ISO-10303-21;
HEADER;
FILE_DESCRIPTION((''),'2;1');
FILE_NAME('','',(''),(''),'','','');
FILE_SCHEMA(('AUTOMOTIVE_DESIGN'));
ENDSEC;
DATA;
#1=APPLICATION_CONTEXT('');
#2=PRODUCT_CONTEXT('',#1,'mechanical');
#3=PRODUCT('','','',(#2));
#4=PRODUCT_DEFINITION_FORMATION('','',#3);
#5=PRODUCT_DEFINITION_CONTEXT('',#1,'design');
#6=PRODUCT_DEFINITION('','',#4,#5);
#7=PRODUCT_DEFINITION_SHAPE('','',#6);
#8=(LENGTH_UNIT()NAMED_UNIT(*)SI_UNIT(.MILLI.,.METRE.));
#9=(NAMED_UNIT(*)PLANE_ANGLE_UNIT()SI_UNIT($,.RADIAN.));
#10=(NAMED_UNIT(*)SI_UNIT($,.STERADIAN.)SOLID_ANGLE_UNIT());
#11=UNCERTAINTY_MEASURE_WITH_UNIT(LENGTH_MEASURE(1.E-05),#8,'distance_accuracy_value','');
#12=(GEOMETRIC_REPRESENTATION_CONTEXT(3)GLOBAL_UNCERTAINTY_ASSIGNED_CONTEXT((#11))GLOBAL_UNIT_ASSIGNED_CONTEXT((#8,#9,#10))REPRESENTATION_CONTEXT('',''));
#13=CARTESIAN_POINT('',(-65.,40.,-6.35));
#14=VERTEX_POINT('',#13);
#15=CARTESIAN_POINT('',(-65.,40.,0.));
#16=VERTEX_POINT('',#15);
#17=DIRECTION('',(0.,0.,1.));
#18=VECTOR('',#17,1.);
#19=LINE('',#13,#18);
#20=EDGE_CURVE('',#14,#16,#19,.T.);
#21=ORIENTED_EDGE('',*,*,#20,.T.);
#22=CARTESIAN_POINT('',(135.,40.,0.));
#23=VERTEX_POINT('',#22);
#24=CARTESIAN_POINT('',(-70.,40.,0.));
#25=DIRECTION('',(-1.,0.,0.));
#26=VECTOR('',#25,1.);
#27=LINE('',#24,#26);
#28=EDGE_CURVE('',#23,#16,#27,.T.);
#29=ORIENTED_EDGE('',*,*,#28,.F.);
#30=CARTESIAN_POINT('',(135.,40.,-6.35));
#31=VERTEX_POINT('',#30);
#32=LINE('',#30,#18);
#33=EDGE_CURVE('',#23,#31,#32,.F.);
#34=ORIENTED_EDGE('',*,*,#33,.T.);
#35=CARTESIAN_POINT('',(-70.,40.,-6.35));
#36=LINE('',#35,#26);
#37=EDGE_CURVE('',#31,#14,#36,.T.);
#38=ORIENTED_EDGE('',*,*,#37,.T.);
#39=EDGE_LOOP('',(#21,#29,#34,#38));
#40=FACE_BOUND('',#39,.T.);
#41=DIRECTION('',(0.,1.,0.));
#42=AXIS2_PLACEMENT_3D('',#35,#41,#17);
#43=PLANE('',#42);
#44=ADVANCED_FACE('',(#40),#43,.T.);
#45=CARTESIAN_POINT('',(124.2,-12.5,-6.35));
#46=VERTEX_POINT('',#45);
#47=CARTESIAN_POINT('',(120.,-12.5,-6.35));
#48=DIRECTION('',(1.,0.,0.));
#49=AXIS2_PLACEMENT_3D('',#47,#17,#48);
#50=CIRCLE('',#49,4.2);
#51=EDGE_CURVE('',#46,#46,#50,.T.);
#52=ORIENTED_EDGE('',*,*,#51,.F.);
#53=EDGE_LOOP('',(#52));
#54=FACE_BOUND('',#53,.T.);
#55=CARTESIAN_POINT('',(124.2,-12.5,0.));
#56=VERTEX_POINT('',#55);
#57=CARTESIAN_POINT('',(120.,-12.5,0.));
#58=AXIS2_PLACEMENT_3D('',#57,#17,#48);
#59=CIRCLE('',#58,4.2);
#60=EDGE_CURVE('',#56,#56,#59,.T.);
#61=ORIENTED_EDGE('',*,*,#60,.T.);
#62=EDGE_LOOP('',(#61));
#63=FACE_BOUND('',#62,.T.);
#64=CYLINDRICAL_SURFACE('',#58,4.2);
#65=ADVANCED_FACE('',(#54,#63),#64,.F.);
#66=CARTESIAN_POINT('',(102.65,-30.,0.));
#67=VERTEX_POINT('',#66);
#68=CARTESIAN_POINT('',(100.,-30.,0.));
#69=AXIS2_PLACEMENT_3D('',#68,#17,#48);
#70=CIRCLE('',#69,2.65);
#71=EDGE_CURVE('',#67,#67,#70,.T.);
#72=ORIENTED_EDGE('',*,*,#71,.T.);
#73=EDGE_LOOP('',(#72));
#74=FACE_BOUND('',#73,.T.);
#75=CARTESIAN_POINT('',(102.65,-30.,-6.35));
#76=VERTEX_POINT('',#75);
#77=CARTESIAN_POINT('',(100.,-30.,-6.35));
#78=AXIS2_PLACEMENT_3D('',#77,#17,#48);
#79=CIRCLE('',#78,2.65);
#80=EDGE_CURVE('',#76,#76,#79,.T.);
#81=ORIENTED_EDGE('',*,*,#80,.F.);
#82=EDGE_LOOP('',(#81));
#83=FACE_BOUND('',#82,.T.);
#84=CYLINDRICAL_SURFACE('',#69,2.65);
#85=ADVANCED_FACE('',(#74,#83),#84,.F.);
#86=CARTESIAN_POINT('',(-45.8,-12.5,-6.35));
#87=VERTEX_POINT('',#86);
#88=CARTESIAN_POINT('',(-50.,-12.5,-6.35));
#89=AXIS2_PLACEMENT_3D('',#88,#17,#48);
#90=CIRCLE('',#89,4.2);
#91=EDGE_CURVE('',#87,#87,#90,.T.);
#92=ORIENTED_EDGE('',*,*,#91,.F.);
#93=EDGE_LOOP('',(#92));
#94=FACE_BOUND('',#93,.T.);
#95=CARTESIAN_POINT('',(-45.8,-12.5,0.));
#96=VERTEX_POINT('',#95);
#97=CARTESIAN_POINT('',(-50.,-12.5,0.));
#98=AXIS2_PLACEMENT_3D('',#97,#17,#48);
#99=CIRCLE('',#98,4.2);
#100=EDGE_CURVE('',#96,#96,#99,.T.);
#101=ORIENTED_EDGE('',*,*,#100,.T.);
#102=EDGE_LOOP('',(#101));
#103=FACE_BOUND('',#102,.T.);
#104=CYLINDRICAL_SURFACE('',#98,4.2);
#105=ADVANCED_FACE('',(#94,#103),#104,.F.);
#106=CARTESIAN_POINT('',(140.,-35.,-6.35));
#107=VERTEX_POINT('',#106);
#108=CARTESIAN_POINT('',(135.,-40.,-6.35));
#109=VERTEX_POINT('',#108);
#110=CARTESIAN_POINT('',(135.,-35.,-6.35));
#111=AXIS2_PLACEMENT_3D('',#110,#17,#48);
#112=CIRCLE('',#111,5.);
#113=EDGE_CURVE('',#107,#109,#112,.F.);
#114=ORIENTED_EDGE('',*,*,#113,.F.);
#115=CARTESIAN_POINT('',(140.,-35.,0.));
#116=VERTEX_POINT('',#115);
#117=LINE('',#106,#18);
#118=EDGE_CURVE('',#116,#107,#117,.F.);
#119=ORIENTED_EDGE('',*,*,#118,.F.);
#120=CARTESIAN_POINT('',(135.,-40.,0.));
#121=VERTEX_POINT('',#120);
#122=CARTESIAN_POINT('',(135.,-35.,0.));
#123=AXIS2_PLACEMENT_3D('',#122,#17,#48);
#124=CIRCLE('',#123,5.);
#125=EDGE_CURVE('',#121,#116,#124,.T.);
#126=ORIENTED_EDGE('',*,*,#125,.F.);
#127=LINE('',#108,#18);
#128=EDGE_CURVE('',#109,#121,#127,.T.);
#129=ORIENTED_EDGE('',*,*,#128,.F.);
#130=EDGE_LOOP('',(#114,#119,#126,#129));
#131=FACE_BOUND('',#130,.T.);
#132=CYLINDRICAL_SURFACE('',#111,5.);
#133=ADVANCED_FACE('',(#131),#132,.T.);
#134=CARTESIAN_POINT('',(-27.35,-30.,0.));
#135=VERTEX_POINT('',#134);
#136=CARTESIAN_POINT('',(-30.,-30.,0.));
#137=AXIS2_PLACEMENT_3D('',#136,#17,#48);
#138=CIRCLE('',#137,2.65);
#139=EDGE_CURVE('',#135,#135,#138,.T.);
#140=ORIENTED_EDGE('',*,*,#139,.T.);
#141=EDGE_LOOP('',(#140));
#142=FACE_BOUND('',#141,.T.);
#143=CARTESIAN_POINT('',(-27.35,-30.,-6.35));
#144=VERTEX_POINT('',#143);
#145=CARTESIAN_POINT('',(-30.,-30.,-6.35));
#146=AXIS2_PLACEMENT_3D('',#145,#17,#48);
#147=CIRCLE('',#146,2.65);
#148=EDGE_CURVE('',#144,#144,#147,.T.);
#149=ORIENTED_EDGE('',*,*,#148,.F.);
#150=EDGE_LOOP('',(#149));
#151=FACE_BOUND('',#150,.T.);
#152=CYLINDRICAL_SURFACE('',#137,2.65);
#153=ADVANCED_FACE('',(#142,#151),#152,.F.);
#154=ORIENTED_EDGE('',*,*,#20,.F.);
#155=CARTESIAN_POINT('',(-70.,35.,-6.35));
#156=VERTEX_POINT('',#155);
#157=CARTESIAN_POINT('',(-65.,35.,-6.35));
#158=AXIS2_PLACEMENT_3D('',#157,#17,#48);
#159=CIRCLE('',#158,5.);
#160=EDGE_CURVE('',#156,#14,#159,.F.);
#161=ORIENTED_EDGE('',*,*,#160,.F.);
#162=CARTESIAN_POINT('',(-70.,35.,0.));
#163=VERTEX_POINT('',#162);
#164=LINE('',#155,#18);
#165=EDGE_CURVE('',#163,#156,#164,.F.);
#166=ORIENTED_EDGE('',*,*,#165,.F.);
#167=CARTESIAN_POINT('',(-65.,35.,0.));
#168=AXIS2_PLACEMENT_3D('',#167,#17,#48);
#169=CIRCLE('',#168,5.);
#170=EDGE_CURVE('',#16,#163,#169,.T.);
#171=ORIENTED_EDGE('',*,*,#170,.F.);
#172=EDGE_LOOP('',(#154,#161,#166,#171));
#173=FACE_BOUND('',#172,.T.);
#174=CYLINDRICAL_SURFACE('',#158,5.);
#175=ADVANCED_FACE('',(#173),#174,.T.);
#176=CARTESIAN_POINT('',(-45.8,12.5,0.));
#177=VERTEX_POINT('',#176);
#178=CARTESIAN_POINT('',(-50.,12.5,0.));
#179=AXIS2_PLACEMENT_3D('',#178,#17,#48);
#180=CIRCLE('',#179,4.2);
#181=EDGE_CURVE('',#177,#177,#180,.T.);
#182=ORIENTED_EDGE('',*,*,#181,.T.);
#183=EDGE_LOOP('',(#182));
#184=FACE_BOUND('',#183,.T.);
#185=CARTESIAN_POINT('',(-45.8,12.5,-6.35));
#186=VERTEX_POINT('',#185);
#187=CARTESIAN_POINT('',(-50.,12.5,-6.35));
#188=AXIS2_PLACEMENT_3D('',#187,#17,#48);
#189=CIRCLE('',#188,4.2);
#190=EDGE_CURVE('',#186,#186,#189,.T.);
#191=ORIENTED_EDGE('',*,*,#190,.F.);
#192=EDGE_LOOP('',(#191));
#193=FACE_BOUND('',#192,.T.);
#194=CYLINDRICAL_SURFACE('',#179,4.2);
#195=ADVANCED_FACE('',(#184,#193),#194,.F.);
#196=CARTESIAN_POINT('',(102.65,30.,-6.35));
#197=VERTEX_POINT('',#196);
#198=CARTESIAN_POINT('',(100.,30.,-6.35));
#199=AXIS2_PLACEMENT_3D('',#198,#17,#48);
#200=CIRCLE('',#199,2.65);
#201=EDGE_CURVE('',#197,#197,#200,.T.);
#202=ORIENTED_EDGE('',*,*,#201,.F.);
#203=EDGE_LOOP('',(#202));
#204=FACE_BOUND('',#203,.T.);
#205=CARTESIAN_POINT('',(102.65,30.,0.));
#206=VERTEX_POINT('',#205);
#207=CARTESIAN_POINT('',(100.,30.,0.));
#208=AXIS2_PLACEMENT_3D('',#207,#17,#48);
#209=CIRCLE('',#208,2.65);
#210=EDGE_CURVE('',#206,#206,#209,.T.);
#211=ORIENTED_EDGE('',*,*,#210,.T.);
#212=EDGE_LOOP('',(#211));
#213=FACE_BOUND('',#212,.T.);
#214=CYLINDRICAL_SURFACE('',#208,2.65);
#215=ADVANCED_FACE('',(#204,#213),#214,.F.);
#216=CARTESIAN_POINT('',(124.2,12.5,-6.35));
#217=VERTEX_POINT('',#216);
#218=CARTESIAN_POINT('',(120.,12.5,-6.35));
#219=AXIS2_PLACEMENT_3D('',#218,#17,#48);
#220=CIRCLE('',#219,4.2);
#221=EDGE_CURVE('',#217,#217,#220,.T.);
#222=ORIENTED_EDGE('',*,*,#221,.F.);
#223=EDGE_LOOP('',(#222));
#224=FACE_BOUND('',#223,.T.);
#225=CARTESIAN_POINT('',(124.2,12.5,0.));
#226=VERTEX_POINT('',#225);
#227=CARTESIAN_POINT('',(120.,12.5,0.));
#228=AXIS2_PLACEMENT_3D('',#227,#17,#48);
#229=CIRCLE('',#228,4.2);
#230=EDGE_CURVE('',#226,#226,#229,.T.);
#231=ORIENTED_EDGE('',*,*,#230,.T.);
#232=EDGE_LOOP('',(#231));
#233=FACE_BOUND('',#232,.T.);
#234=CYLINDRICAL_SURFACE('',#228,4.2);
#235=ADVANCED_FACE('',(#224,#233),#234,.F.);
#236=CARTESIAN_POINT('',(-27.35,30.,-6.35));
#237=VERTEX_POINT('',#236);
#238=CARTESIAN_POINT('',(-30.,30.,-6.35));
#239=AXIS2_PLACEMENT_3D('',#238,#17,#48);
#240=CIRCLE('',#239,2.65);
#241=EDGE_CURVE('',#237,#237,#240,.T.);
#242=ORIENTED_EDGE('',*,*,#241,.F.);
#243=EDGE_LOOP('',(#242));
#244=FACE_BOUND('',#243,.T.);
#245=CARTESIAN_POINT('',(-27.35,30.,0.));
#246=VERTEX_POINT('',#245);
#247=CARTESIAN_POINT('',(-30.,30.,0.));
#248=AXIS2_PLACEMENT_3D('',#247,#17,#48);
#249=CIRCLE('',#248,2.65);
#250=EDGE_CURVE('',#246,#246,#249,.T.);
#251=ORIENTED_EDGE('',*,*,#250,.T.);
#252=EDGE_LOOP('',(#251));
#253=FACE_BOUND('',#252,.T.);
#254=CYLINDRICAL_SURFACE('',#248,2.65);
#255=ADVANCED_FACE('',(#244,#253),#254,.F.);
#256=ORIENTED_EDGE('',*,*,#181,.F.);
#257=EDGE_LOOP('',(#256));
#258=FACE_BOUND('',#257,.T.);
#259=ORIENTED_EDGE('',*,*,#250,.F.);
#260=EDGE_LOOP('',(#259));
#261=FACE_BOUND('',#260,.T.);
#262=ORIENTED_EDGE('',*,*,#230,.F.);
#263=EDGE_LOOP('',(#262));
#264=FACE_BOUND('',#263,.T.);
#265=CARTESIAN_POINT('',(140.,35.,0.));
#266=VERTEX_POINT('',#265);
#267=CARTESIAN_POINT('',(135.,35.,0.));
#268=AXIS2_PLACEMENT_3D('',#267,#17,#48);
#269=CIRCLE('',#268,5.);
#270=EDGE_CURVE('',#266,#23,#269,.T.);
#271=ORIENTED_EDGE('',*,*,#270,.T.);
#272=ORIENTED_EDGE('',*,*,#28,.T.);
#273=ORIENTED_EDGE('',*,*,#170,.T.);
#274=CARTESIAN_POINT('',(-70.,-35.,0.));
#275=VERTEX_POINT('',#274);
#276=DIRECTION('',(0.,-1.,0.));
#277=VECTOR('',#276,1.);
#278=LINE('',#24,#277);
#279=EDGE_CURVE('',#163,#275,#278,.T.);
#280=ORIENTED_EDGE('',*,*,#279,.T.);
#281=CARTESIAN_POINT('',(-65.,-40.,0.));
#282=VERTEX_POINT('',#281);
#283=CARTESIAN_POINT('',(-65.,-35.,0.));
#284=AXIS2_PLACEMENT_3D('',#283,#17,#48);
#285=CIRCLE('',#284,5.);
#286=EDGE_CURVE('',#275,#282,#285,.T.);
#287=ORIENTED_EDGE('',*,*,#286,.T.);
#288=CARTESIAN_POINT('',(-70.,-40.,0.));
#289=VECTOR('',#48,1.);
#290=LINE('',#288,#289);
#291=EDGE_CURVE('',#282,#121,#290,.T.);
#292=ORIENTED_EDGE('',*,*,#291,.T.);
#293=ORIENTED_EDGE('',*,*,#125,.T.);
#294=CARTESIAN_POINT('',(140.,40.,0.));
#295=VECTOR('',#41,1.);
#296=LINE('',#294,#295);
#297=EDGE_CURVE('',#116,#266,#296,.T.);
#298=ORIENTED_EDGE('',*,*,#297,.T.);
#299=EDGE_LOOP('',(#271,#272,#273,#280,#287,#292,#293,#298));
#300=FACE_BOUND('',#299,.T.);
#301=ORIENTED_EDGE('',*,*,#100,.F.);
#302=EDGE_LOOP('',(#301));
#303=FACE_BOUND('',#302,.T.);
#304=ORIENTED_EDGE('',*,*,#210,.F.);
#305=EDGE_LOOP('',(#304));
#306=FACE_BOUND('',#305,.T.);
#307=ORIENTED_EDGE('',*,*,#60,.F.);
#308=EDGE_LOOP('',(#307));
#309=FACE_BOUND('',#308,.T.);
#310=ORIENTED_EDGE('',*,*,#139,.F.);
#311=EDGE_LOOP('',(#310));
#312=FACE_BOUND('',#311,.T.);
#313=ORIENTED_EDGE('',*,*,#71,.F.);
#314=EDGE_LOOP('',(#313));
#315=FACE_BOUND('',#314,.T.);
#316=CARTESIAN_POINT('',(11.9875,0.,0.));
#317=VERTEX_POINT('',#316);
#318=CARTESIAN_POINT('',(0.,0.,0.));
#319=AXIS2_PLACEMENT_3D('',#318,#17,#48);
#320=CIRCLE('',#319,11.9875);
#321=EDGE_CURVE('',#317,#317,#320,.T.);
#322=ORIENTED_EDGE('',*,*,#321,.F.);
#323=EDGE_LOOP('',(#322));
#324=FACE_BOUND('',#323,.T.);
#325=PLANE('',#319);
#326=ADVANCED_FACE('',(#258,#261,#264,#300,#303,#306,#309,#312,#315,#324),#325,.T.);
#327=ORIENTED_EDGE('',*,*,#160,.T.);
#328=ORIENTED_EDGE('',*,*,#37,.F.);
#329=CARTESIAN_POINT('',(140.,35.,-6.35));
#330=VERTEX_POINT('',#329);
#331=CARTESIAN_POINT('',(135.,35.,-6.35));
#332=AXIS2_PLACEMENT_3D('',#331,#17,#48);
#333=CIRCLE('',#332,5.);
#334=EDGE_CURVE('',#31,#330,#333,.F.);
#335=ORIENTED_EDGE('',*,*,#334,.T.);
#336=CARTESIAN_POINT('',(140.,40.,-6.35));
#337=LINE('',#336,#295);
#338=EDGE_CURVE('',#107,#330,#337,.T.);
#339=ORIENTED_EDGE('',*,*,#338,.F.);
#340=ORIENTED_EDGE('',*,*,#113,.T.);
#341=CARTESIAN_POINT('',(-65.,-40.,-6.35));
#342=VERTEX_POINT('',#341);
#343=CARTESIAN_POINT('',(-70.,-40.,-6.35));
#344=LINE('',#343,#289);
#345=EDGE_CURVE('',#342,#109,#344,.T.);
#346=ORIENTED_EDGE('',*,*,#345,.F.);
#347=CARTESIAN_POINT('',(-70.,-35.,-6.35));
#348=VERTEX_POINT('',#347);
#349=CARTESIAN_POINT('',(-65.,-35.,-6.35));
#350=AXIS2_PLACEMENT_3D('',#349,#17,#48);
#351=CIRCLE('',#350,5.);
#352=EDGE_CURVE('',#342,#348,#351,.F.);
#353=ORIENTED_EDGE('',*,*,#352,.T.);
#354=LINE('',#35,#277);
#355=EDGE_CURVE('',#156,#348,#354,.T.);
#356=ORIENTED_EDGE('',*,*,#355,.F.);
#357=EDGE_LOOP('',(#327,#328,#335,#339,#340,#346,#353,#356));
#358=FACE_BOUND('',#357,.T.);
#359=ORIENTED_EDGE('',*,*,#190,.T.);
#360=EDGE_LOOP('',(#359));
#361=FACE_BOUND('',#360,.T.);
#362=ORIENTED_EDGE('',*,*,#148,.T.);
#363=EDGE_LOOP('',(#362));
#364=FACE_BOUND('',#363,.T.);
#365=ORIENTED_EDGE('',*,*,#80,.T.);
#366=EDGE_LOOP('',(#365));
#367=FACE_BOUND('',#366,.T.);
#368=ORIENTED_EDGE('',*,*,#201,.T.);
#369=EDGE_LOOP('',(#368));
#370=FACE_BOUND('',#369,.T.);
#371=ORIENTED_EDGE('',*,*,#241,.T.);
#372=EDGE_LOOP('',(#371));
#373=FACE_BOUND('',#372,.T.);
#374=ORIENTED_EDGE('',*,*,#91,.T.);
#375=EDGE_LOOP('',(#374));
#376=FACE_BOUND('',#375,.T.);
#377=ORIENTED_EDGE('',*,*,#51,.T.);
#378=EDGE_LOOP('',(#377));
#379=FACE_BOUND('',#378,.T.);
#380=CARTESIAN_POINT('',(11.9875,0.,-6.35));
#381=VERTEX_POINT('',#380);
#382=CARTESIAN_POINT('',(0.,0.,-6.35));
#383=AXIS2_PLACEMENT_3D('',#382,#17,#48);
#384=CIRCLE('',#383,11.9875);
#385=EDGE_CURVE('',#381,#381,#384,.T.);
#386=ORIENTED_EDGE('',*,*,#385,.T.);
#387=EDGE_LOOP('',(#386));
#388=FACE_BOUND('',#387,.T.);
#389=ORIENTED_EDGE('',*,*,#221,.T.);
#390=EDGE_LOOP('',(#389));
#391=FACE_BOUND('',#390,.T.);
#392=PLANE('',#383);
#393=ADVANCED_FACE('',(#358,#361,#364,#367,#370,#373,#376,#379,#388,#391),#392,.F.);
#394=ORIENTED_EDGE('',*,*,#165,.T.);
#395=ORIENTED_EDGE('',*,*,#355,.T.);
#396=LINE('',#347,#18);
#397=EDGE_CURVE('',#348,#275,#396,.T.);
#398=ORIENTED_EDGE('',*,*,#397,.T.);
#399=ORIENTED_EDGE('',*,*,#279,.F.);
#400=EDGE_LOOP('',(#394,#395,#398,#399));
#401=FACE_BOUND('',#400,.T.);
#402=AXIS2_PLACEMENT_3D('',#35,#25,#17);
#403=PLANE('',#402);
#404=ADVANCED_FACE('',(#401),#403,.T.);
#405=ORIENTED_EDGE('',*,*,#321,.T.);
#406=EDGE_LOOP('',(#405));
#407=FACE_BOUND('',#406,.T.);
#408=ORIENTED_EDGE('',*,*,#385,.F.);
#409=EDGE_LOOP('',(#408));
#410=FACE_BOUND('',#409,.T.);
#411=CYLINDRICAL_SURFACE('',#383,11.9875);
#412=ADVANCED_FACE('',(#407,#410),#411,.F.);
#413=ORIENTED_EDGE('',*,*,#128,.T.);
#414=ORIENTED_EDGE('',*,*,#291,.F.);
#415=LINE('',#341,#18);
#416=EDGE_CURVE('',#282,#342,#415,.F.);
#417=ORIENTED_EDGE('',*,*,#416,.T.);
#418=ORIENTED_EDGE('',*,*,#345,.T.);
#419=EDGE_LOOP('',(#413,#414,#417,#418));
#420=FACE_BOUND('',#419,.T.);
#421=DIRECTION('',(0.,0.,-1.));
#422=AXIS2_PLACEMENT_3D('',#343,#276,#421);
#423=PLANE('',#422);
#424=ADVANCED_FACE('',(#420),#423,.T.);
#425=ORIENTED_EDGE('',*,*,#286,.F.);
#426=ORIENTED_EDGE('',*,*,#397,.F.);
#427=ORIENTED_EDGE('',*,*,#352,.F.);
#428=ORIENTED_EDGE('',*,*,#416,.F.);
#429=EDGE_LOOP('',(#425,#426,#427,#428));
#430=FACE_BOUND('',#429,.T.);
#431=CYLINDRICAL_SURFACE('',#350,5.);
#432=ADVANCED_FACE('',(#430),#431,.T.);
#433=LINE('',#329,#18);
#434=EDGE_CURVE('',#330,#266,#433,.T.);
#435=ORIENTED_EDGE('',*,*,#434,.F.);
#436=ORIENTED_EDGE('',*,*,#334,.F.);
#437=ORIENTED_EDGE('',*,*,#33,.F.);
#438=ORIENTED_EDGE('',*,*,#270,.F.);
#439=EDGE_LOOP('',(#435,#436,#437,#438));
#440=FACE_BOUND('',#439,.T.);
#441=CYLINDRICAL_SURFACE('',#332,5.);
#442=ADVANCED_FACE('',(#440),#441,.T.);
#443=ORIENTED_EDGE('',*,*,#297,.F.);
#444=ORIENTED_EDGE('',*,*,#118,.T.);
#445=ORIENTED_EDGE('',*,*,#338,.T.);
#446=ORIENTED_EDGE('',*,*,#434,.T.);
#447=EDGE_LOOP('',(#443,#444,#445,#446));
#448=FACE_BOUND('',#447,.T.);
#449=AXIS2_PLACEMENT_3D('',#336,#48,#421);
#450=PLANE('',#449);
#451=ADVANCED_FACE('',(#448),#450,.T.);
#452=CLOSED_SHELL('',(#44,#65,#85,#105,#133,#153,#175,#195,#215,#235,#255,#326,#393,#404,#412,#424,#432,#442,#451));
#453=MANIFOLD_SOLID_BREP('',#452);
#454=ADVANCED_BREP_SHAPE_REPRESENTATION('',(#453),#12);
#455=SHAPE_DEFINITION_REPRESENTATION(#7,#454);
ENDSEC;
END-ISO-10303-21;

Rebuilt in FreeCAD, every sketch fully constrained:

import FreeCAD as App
import Part
import Sketcher


def edges_at(feature, points):
    """Names of the edges that pass closest to the given points."""
    edges = feature.Shape.Edges
    near = lambda p: min(range(len(edges)), key=lambda i: edges[i].distToShape(Part.Vertex(*p))[0])
    return sorted({f"Edge{near(p) + 1}" for p in points})


def add_polygon(sketch, points):
    """Adds a closed chain of lines whose ends are joined by coincident constraints."""
    first, n = sketch.GeometryCount, len(points)
    for a, b in zip(points, points[1:] + points[:1]):
        sketch.addGeometry(Part.LineSegment(App.Vector(*a, 0), App.Vector(*b, 0)), False)
    for i in range(n):
        sketch.addConstraint(Sketcher.Constraint("Coincident", first + i, 2, first + (i + 1) % n, 1))

doc = App.newDocument("Part")
body = doc.addObject("PartDesign::Body", "Body")

# Sketch on XY plane
sketch1 = doc.addObject("Sketcher::SketchObject", "Sketch")
body.addObject(sketch1)
sketch1.AttachmentSupport = (doc.XY_Plane, [""])
sketch1.MapMode = "FlatFace"
add_polygon(sketch1, [(-70, 40), (-70, -40), (140, -40), (140, 40)])  # lines 0-3
sketch1.addGeometry(Part.Circle(App.Vector(0, 0, 0), App.Vector(0, 0, 1), 12), False)  # 4
sketch1.addConstraint(Sketcher.Constraint("Vertical", 0))
sketch1.addConstraint(Sketcher.Constraint("Horizontal", 1))
sketch1.addConstraint(Sketcher.Constraint("Vertical", 2))
sketch1.addConstraint(Sketcher.Constraint("Horizontal", 3))
sketch1.addConstraint(Sketcher.Constraint("Coincident", 4, 3, -1, 1))
sketch1.addConstraint(Sketcher.Constraint("DistanceX", 1, 1, 1, 2, 210.0))
sketch1.addConstraint(Sketcher.Constraint("DistanceY", 0, 2, 0, 1, 80.0))
sketch1.addConstraint(Sketcher.Constraint("Diameter", 4, 23.975))
sketch1.addConstraint(Sketcher.Constraint("DistanceX", 0, 2, -1, 1, 70.0))
sketch1.addConstraint(Sketcher.Constraint("DistanceY", 0, 2, -1, 1, 40.0))
pad1 = doc.addObject("PartDesign::Pad", "Pad")
body.addObject(pad1)
pad1.Profile = sketch1
pad1.Length = 6.35
pad1.Reversed = True

# Sketch on XY plane
sketch2 = doc.addObject("Sketcher::SketchObject", "Sketch001")
body.addObject(sketch2)
sketch2.AttachmentSupport = (doc.XY_Plane, [""])
sketch2.MapMode = "FlatFace"
sketch2.addGeometry(Part.Circle(App.Vector(-30, 30, 0), App.Vector(0, 0, 1), 2.6), False)
sketch2.addGeometry(Part.Circle(App.Vector(-30, -30, 0), App.Vector(0, 0, 1), 2.6), False)
sketch2.addGeometry(Part.Circle(App.Vector(100, -30, 0), App.Vector(0, 0, 1), 2.6), False)
sketch2.addGeometry(Part.Circle(App.Vector(100, 30, 0), App.Vector(0, 0, 1), 2.6), False)
sketch2.addConstraint(Sketcher.Constraint("Equal", 0, 1))
sketch2.addConstraint(Sketcher.Constraint("Equal", 1, 2))
sketch2.addConstraint(Sketcher.Constraint("Equal", 2, 3))
sketch2.addConstraint(Sketcher.Constraint("Symmetric", 0, 3, 1, 3, -1))
sketch2.addConstraint(Sketcher.Constraint("Symmetric", 2, 3, 3, 3, -1))
sketch2.addConstraint(Sketcher.Constraint("Horizontal", 1, 3, 2, 3))
sketch2.addConstraint(Sketcher.Constraint("Diameter", 0, 5.3))
sketch2.addConstraint(Sketcher.Constraint("DistanceX", 0, 3, -1, 1, 30.0))
sketch2.addConstraint(Sketcher.Constraint("DistanceY", -1, 1, 0, 3, 30.0))
sketch2.addConstraint(Sketcher.Constraint("DistanceX", -1, 1, 2, 3, 100.0))
doc.recompute()
hole = doc.addObject("PartDesign::Hole", "Hole")
body.addObject(hole)
hole.Profile = sketch2
hole.ThreadType = "None"
hole.Diameter = 5.3
hole.DepthType = "ThroughAll"
doc.recompute()

fillet = doc.addObject("PartDesign::Fillet", "Fillet")
body.addObject(fillet)
fillet.Base = (hole, edges_at(hole, [
    (-70, 40, -3.175),
    (140, 40, -3.175),
    (140, -40, -3.175),
    (-70, -40, -3.175),
]))
fillet.Radius = 5

# Sketch on XY plane
sketch3 = doc.addObject("Sketcher::SketchObject", "Sketch002")
body.addObject(sketch3)
sketch3.AttachmentSupport = (doc.XY_Plane, [""])
sketch3.MapMode = "FlatFace"
sketch3.addGeometry(Part.Circle(App.Vector(-50, 12.5, 0), App.Vector(0, 0, 1), 4.2), False)
sketch3.addGeometry(Part.Circle(App.Vector(-50, -12.5, 0), App.Vector(0, 0, 1), 4.2), False)
sketch3.addGeometry(Part.Circle(App.Vector(120, -12.5, 0), App.Vector(0, 0, 1), 4.2), False)
sketch3.addGeometry(Part.Circle(App.Vector(120, 12.5, 0), App.Vector(0, 0, 1), 4.2), False)
sketch3.addConstraint(Sketcher.Constraint("Equal", 0, 1))
sketch3.addConstraint(Sketcher.Constraint("Equal", 1, 2))
sketch3.addConstraint(Sketcher.Constraint("Equal", 2, 3))
sketch3.addConstraint(Sketcher.Constraint("Symmetric", 0, 3, 1, 3, -1))
sketch3.addConstraint(Sketcher.Constraint("Symmetric", 2, 3, 3, 3, -1))
sketch3.addConstraint(Sketcher.Constraint("Horizontal", 1, 3, 2, 3))
sketch3.addConstraint(Sketcher.Constraint("Diameter", 0, 8.4))
sketch3.addConstraint(Sketcher.Constraint("DistanceX", 0, 3, -1, 1, 50.0))
sketch3.addConstraint(Sketcher.Constraint("DistanceX", -1, 1, 2, 3, 120.0))
sketch3.addConstraint(Sketcher.Constraint("DistanceY", 1, 3, 0, 3, 25.0))
doc.recompute()
hole2 = doc.addObject("PartDesign::Hole", "Hole001")
body.addObject(hole2)
hole2.Profile = sketch3
hole2.ThreadType = "None"
hole2.Diameter = 8.4
hole2.DepthType = "ThroughAll"

doc.recompute()
